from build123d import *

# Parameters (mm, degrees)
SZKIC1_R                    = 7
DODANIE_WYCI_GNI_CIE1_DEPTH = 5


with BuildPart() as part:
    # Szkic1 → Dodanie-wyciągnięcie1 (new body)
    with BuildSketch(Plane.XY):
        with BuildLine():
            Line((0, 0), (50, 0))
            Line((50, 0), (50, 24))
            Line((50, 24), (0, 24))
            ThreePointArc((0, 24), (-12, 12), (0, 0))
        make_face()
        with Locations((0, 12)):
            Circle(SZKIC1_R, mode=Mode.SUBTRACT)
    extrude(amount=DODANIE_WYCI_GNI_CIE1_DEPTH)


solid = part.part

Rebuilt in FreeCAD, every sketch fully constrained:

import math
import FreeCAD as App
import Part
import Sketcher

V = App.Vector

doc = App.newDocument("Part")
body = doc.addObject("PartDesign::Body", "Body")

# Sketch on XY plane
sketch1 = body.newObject("Sketcher::SketchObject", "Sketch")
sketch1.AttachmentSupport = (doc.getObject("XY_Plane"), [""])
sketch1.MapMode = "FlatFace"
sketch1.addGeometry([
    Part.LineSegment(V(0, 0, 0), V(50, 0, 0)),  # 0
    Part.LineSegment(V(50, 0, 0), V(50, 24, 0)),  # 1
    Part.LineSegment(V(50, 24, 0), V(0, 24, 0)),  # 2
    Part.ArcOfCircle(Part.Circle(V(0, 12, 0), V(0, 0, 1), 12), math.radians(90), math.radians(270)),  # 3
    Part.Circle(V(0, 12, 0), V(0, 0, 1), 7),  # 4
], False)
sketch1.addConstraint([
    Sketcher.Constraint("Coincident", 0, 2, 1, 1),
    Sketcher.Constraint("Coincident", 1, 2, 2, 1),
    Sketcher.Constraint("Tangent", 2, 2, 3, 1),
    Sketcher.Constraint("Tangent", 3, 2, 0, 1),
    Sketcher.Constraint("Horizontal", 0),
    Sketcher.Constraint("Vertical", 1),
    Sketcher.Constraint("Horizontal", 2),
    Sketcher.Constraint("Coincident", 3, 2, -1, 1),
    Sketcher.Constraint("Coincident", 4, 3, 3, 3),
    Sketcher.Constraint("Diameter", 4, 14.0),
    Sketcher.Constraint("Radius", 3, 12.0),
    Sketcher.Constraint("DistanceX", 0, 1, 0, 2, 50.0),
])
pad1 = body.newObject("PartDesign::Pad", "Pad")
pad1.Profile = sketch1
pad1.Length = 5

doc.recompute()
